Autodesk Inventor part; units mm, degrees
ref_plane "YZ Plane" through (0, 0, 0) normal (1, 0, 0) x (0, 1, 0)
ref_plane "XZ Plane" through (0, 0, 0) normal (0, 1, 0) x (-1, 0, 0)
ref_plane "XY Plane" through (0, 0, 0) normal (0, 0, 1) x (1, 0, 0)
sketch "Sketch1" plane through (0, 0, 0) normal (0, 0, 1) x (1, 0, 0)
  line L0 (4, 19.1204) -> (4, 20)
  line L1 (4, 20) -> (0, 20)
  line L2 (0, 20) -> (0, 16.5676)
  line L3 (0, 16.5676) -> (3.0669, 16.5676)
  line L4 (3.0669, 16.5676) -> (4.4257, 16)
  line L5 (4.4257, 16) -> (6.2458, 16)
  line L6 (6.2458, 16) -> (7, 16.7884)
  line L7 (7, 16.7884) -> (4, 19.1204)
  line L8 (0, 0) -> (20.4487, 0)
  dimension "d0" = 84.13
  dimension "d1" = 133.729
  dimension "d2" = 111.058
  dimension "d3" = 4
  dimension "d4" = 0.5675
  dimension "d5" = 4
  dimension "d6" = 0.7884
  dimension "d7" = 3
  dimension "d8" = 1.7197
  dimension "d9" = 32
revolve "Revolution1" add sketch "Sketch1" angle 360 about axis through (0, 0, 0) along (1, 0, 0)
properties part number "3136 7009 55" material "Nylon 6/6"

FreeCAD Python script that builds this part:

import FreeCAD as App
import Part
import Sketcher
from FreeCAD import Vector
Q = App.Units.Quantity


def add_polygon(sketch, points):
    """Adds a closed chain of lines whose ends are joined by coincident constraints."""
    first, n = sketch.GeometryCount, len(points)
    for a, b in zip(points, points[1:] + points[:1]):
        sketch.addGeometry(Part.LineSegment(App.Vector(*a, 0), App.Vector(*b, 0)), False)
    for i in range(n):
        sketch.addConstraint(Sketcher.Constraint("Coincident", first + i, 2, first + (i + 1) % n, 1))

doc = App.newDocument("Part")
body = doc.addObject("PartDesign::Body", "Body")

# Sketch on XY plane
sketch1 = doc.addObject("Sketcher::SketchObject", "Sketch")
body.addObject(sketch1)
sketch1.AttachmentSupport = (doc.XY_Plane, [""])
sketch1.MapMode = "FlatFace"
add_polygon(sketch1, [(7, 16.8), (4, 19.1), (4, 20), (0, 20), (0, 16.6), (3.1, 16.6), (4.4, 16), (6.2, 16)])  # lines 0-7
sketch1.addConstraint([
    Sketcher.Constraint("Vertical", 1),
    Sketcher.Constraint("Horizontal", 2),
    Sketcher.Constraint("Vertical", 3),
    Sketcher.Constraint("Horizontal", 4),
    Sketcher.Constraint("Horizontal", 6),
    Sketcher.Constraint("PointOnObject", 2, 2, -2),
    Sketcher.Constraint("DistanceX", 2, 2, 2, 1, 4.0),
    Sketcher.Constraint("DistanceY", 5, 2, 1, 2, 4.0),
    Sketcher.Constraint("DistanceX", 0, 2, 7, 2, 3.0),
    Sketcher.Constraint("DistanceY", -1, 1, 1, 2, 20.0),
    Sketcher.Constraint("DistanceX", 6, 1, 6, 2, 1.82),
    Sketcher.Constraint("Angle", 0, Q("142.141 deg")),
    Sketcher.Constraint("Angle", 7, Q("46.27 deg")),
    Sketcher.Constraint("DistanceY", 5, 2, 4, 2, 0.5676),
    Sketcher.Constraint("DistanceY", 6, 2, 7, 2, 0.7884),
    Sketcher.Constraint("DistanceX", 4, 1, 4, 2, 3.067),
])
revolution = doc.addObject("PartDesign::Revolution", "Revolution")
body.addObject(revolution)
revolution.Profile = sketch1
revolution.ReferenceAxis = (sketch1, ["H_Axis"])
revolution.Angle = 360

doc.recompute()
